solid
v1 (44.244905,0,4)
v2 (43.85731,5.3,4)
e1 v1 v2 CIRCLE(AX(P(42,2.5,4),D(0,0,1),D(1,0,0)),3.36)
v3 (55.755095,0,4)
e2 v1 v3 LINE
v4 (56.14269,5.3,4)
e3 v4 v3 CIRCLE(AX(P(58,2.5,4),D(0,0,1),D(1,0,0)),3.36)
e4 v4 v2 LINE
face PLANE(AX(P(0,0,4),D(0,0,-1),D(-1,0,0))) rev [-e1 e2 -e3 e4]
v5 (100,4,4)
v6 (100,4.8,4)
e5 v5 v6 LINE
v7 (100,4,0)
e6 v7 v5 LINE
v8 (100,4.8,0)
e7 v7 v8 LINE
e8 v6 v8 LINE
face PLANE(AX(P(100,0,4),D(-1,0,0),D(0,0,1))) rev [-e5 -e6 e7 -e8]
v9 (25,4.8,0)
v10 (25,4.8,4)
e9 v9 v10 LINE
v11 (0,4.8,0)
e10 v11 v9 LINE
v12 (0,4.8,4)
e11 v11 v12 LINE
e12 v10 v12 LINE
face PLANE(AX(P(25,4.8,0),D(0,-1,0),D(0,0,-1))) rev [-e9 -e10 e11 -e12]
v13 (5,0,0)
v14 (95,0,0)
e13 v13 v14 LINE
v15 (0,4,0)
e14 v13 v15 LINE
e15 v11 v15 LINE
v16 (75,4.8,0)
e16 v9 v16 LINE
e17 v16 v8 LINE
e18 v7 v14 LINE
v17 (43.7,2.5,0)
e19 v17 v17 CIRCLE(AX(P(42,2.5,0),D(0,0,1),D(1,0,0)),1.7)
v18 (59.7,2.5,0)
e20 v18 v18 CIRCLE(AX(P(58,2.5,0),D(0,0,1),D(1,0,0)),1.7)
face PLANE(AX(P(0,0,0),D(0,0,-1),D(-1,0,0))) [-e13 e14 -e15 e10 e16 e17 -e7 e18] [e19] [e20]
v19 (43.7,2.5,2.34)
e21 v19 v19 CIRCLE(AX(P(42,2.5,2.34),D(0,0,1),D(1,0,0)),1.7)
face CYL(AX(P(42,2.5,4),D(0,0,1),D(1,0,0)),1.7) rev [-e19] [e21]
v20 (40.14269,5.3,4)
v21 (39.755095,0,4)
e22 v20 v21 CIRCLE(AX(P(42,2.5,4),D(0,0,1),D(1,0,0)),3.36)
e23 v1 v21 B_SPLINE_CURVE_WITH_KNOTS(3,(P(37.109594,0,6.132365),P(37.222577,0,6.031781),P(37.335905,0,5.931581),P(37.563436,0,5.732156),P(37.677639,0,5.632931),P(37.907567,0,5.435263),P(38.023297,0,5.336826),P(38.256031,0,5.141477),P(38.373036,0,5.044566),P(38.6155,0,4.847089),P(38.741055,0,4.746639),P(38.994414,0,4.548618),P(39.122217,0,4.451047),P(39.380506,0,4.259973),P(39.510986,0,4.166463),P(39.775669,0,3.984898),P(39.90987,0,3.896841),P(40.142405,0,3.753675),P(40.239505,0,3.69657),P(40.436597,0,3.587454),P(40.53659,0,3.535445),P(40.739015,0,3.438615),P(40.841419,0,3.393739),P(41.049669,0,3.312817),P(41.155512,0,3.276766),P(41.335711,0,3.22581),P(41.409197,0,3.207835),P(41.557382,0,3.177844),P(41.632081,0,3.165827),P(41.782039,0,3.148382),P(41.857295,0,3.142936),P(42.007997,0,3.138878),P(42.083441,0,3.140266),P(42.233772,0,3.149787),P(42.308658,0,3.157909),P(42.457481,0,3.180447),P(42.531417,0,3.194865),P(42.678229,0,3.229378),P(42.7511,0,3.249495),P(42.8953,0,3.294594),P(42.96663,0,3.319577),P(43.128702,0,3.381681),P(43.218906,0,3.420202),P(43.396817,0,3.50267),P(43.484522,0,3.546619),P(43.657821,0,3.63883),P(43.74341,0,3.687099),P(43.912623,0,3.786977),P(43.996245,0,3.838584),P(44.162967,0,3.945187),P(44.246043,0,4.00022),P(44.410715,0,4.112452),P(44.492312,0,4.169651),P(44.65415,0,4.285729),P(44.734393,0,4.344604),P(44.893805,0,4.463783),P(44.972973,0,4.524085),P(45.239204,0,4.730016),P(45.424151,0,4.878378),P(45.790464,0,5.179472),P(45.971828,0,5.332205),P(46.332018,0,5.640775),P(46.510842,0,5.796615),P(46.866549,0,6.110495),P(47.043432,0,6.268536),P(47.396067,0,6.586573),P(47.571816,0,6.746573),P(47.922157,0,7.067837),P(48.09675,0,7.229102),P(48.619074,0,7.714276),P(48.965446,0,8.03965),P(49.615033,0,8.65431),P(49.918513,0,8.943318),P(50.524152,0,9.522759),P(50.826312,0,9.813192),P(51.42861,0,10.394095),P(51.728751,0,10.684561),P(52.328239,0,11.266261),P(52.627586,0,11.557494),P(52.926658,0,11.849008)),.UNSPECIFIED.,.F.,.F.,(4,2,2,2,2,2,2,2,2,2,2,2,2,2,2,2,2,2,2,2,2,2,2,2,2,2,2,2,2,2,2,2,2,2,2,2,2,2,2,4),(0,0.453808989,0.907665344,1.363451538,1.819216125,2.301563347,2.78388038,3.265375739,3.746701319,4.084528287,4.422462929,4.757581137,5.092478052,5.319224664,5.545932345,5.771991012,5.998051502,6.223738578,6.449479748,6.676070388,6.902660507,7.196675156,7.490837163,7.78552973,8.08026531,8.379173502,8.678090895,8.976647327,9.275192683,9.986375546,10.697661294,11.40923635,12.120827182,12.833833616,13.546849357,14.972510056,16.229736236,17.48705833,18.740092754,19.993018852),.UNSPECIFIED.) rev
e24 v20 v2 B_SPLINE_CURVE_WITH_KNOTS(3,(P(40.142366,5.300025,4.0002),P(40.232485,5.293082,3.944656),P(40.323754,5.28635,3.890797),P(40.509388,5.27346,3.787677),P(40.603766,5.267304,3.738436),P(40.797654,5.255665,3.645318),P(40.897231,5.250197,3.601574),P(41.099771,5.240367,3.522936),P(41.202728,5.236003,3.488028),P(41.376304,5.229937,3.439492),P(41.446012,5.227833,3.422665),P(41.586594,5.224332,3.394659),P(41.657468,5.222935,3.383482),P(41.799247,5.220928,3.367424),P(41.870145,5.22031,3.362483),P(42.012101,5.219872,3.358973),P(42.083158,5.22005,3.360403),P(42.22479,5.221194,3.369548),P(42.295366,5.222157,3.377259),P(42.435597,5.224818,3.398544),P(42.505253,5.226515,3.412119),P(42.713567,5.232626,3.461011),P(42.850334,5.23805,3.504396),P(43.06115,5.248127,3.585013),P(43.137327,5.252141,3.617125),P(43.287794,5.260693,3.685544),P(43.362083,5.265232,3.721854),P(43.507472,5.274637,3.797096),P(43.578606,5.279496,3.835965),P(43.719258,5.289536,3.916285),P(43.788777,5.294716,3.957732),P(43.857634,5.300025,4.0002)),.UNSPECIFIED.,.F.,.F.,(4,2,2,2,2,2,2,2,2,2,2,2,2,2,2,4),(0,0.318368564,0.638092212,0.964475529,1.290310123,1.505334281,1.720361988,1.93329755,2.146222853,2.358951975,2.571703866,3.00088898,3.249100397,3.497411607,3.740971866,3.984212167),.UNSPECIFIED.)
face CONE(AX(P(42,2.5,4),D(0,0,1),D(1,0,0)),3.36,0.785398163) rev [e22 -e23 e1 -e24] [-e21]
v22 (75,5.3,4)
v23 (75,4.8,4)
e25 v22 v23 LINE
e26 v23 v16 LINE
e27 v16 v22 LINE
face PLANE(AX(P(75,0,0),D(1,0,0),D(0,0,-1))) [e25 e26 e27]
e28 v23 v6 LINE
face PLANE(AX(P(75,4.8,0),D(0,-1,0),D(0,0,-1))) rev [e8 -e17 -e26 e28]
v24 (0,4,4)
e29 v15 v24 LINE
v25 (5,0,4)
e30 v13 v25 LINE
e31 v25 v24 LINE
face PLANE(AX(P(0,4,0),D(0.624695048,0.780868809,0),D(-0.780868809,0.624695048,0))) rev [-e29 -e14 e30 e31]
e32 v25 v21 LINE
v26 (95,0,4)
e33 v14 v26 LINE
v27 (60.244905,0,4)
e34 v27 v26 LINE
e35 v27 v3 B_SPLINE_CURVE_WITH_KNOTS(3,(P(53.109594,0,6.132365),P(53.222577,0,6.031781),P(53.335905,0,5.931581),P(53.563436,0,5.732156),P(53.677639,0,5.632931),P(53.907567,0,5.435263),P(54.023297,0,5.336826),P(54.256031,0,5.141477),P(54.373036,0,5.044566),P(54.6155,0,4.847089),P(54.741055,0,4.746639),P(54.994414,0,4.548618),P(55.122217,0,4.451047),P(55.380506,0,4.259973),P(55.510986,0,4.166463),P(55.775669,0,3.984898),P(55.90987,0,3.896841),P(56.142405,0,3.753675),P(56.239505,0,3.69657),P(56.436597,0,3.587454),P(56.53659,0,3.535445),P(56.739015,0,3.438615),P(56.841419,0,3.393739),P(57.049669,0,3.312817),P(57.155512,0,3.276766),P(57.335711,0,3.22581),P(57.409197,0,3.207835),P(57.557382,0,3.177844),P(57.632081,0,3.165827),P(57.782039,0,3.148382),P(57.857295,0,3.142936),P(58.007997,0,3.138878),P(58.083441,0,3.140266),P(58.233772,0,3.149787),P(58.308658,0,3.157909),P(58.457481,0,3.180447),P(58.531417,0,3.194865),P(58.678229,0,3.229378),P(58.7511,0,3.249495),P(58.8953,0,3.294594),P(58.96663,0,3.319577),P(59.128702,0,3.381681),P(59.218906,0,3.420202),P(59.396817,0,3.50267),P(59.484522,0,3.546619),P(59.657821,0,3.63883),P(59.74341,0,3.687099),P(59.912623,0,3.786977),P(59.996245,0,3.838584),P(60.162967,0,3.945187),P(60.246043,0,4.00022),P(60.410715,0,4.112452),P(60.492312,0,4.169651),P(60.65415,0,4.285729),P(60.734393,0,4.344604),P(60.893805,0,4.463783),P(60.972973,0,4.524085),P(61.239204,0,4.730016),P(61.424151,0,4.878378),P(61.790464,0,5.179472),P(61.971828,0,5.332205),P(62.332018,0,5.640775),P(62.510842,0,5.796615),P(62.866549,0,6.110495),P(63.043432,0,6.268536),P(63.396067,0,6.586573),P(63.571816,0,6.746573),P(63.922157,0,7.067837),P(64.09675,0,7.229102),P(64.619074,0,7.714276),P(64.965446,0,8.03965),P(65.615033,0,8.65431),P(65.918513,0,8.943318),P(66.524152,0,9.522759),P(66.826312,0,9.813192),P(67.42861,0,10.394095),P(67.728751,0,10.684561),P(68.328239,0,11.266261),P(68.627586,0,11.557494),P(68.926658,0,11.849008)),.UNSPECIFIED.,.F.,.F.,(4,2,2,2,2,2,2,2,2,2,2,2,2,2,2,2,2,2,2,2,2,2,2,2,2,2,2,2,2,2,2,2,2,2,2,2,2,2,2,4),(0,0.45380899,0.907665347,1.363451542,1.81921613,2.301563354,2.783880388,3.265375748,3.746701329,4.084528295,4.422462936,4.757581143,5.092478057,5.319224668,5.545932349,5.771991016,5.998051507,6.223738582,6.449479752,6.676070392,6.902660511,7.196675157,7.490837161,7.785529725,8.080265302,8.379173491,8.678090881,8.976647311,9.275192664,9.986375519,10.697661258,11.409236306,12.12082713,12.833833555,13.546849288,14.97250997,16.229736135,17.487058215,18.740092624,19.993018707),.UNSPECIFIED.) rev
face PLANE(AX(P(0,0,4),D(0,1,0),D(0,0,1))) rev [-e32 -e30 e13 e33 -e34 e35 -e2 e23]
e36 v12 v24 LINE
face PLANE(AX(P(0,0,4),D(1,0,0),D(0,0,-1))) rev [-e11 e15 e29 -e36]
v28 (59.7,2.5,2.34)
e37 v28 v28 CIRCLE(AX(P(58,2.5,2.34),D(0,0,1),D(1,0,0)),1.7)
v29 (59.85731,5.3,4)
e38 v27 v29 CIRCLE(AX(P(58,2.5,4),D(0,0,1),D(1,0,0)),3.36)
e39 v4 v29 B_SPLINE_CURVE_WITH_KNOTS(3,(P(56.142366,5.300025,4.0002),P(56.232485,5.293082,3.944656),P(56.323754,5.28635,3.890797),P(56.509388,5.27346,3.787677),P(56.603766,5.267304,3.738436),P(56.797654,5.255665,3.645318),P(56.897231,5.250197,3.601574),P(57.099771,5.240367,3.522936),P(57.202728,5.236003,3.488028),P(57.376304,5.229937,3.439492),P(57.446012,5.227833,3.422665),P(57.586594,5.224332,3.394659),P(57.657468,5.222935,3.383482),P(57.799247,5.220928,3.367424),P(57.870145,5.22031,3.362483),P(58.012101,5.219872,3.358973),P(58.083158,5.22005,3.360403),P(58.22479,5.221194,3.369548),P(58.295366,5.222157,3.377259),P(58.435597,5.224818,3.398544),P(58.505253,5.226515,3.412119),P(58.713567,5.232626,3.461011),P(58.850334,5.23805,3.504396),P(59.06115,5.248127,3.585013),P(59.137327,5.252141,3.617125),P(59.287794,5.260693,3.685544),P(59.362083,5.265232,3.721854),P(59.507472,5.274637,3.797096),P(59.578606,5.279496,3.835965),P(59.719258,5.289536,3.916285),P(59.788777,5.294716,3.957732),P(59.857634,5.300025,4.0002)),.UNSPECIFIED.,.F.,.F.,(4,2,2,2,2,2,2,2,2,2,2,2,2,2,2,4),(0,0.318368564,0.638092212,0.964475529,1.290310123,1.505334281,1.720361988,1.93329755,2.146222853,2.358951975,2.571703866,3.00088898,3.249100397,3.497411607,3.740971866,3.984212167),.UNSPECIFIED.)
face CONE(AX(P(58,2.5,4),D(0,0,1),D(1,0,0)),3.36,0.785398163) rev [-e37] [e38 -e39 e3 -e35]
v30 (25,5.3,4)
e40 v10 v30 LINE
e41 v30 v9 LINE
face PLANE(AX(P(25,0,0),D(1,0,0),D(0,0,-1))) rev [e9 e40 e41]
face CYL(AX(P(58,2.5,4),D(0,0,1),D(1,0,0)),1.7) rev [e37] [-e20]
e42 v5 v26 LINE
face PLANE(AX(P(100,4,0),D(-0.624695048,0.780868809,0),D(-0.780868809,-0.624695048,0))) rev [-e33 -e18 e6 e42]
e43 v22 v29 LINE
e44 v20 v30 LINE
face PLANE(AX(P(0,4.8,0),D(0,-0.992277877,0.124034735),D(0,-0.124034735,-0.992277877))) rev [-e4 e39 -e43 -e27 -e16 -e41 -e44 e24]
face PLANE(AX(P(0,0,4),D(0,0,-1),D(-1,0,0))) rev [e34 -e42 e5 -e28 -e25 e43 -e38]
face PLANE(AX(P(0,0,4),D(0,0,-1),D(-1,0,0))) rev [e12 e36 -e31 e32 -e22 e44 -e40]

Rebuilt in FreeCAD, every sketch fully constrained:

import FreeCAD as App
import Part
import Sketcher

V = App.Vector


def add_polygon(sketch, points):
    """Adds a closed chain of lines whose ends are joined by coincident constraints."""
    first, n = sketch.GeometryCount, len(points)
    for a, b in zip(points, points[1:] + points[:1]):
        sketch.addGeometry(Part.LineSegment(App.Vector(*a, 0), App.Vector(*b, 0)), False)
    for i in range(n):
        sketch.addConstraint(Sketcher.Constraint("Coincident", first + i, 2, first + (i + 1) % n, 1))

doc = App.newDocument("Part")
params = doc.addObject("Spreadsheet::Sheet", "Params")
for row, (alias, value) in enumerate([
    ("sketch1_width", "100 mm"),
    ("sketch1_height", "5.3 mm"),
    ("pad1_length", "4 mm"),
    ("sketch2_height", "4 mm"),
    ("sketch2_width", "0.5 mm"),
    ("sketch3_diameter", "3 mm"),
    ("sketch4_diameter", "3.4 mm"),
    ("hole_diameter", "3.4 mm"),
    ("hole_csink_diameter", "6.72 mm"),
    ("sketch5_width", "5 mm"),
    ("sketch5_height", "4 mm"),
    ("sketch6_height", "4 mm"),
    ("sketch6_width", "0.5 mm"),
    ("pocket4_length", "25 mm"),
    ("sketch7_height", "4 mm"),
    ("sketch7_width", "0.5 mm"),
    ("pocket5_length", "25 mm"),
], start=1):
    params.set(f"A{row}", alias)
    params.set(f"B{row}", "=" + value)
    params.setAlias(f"B{row}", alias)

body = doc.addObject("PartDesign::Body", "Body")

# Sketch on XY plane
sketch1 = body.newObject("Sketcher::SketchObject", "Sketch")
sketch1.AttachmentSupport = (doc.getObject("XY_Plane"), [""])
sketch1.MapMode = "FlatFace"
add_polygon(sketch1, [(0, 5), (0, 0), (100, 0), (100, 5)])  # lines 0-3
sketch1.addConstraint([
    Sketcher.Constraint("Vertical", 0),
    Sketcher.Constraint("Horizontal", 1),
    Sketcher.Constraint("Vertical", 2),
    Sketcher.Constraint("Horizontal", 3),
    Sketcher.Constraint("Coincident", 0, 2, -1, 1),
    Sketcher.Constraint("DistanceX", 1, 1, 1, 2, 100.0),
    Sketcher.Constraint("DistanceY", 0, 2, 0, 1, 5.3),
])
sketch1.setExpression("Constraints[9]", "Params.sketch1_width")
sketch1.setExpression("Constraints[10]", "Params.sketch1_height")
pad1 = body.newObject("PartDesign::Pad", "Pad")
pad1.Profile = sketch1
pad1.setExpression("Length", "Params.pad1_length")

# Sketch on YZ plane
sketch2 = body.newObject("Sketcher::SketchObject", "Sketch001")
sketch2.AttachmentSupport = (doc.getObject("YZ_Plane"), [""])
sketch2.MapMode = "FlatFace"
sketch2.AttachmentOffset = App.Placement(V(0, 0, 100), App.Rotation())
add_polygon(sketch2, [(5.3, 0), (5.3, 4), (4.8, 0)])  # lines 0-2
sketch2.addConstraint([
    Sketcher.Constraint("Vertical", 0),
    Sketcher.Constraint("Horizontal", 2),
    Sketcher.Constraint("PointOnObject", 1, 2, -1),
    Sketcher.Constraint("DistanceY", 0, 1, 0, 2, 4.0),
    Sketcher.Constraint("DistanceX", 2, 1, 2, 2, 0.5),
    Sketcher.Constraint("DistanceX", -1, 1, 0, 2, 5.3),
])
sketch2.setExpression("Constraints[6]", "Params.sketch2_height")
sketch2.setExpression("Constraints[7]", "Params.sketch2_width")
pocket1 = body.newObject("PartDesign::Pocket", "Pocket")
pocket1.Profile = sketch2
pocket1.Type = "ThroughAll"

# Sketch on XY plane
sketch3 = body.newObject("Sketcher::SketchObject", "Sketch002")
sketch3.AttachmentSupport = (doc.getObject("XY_Plane"), [""])
sketch3.MapMode = "FlatFace"
sketch3.AttachmentOffset = App.Placement(V(0, 0, 4), App.Rotation())
sketch3.addGeometry([
    Part.Circle(V(42, 2.5, 0), V(0, 0, 1), 1.5),
    Part.Circle(V(58, 2.5, 0), V(0, 0, 1), 1.5),
], False)
sketch3.addConstraint([
    Sketcher.Constraint("Equal", 0, 1),
    Sketcher.Constraint("Horizontal", 0, 3, 1, 3),
    Sketcher.Constraint("Diameter", 0, 3.0),
    Sketcher.Constraint("DistanceX", -1, 1, 0, 3, 42.0),
    Sketcher.Constraint("DistanceX", -1, 1, 1, 3, 58.0),
    Sketcher.Constraint("DistanceY", -1, 1, 0, 3, 2.5),
])
sketch3.setExpression("Constraints[2]", "Params.sketch3_diameter")
pocket2 = body.newObject("PartDesign::Pocket", "Pocket001")
pocket2.Profile = sketch3
pocket2.Type = "ThroughAll"

# Sketch on XY plane
sketch4 = body.newObject("Sketcher::SketchObject", "Sketch003")
sketch4.AttachmentSupport = (doc.getObject("XY_Plane"), [""])
sketch4.MapMode = "FlatFace"
sketch4.AttachmentOffset = App.Placement(V(0, 0, 4), App.Rotation())
sketch4.addGeometry([
    Part.Circle(V(42, 2.5, 0), V(0, 0, 1), 1.7),
    Part.Circle(V(58, 2.5, 0), V(0, 0, 1), 1.7),
], False)
sketch4.addConstraint([
    Sketcher.Constraint("Equal", 0, 1),
    Sketcher.Constraint("Horizontal", 0, 3, 1, 3),
    Sketcher.Constraint("Diameter", 0, 3.4),
    Sketcher.Constraint("DistanceX", -1, 1, 0, 3, 42.0),
    Sketcher.Constraint("DistanceX", -1, 1, 1, 3, 58.0),
    Sketcher.Constraint("DistanceY", -1, 1, 0, 3, 2.5),
])
sketch4.setExpression("Constraints[2]", "Params.sketch4_diameter")
doc.recompute()
hole = body.newObject("PartDesign::Hole", "Hole")
hole.Profile = sketch4
hole.ThreadType = "None"
hole.setExpression("Diameter", "Params.hole_diameter")
hole.DepthType = "ThroughAll"
hole.HoleCutType = "Countersink"
hole.setExpression("HoleCutDiameter", "Params.hole_csink_diameter")
hole.HoleCutCountersinkAngle = 90

# Sketch on XY plane
sketch5 = body.newObject("Sketcher::SketchObject", "Sketch004")
sketch5.AttachmentSupport = (doc.getObject("XY_Plane"), [""])
sketch5.MapMode = "FlatFace"
sketch5.AttachmentOffset = App.Placement(V(0, 0, 4), App.Rotation())
add_polygon(sketch5, [(5, 0), (0, 4), (0, 0)])  # lines 0-2
add_polygon(sketch5, [(100, 0), (100, 4), (95, 0)])  # lines 3-5
sketch5.addConstraint([
    Sketcher.Constraint("Vertical", 1),
    Sketcher.Constraint("Horizontal", 2),
    Sketcher.Constraint("Vertical", 3),
    Sketcher.Constraint("Horizontal", 5),
    Sketcher.Constraint("Coincident", 1, 2, -1, 1),
    Sketcher.Constraint("PointOnObject", 4, 2, -1),
    Sketcher.Constraint("Horizontal", 0, 2, 3, 2),
    Sketcher.Constraint("Equal", 2, 5),
    Sketcher.Constraint("DistanceX", 2, 1, 2, 2, 5.0),
    Sketcher.Constraint("DistanceY", 1, 2, 1, 1, 4.0),
    Sketcher.Constraint("DistanceX", -1, 1, 3, 2, 100.0),
])
sketch5.setExpression("Constraints[14]", "Params.sketch5_width")
sketch5.setExpression("Constraints[15]", "Params.sketch5_height")
pocket3 = body.newObject("PartDesign::Pocket", "Pocket002")
pocket3.Profile = sketch5
pocket3.Type = "ThroughAll"

# Sketch on YZ plane
sketch6 = body.newObject("Sketcher::SketchObject", "Sketch005")
sketch6.AttachmentSupport = (doc.getObject("YZ_Plane"), [""])
sketch6.MapMode = "FlatFace"
sketch6.AttachmentOffset = App.Placement(V(0, 0, 100), App.Rotation())
add_polygon(sketch6, [(4.8, 0), (5.3, 4), (4.8, 4)])  # lines 0-2
sketch6.addConstraint([
    Sketcher.Constraint("Horizontal", 1),
    Sketcher.Constraint("Vertical", 2),
    Sketcher.Constraint("PointOnObject", 2, 2, -1),
    Sketcher.Constraint("DistanceY", 2, 2, 2, 1, 4.0),
    Sketcher.Constraint("DistanceX", 1, 2, 1, 1, 0.5),
    Sketcher.Constraint("DistanceX", -1, 1, 0, 2, 5.3),
])
sketch6.setExpression("Constraints[6]", "Params.sketch6_height")
sketch6.setExpression("Constraints[7]", "Params.sketch6_width")
pocket4 = body.newObject("PartDesign::Pocket", "Pocket003")
pocket4.Profile = sketch6
pocket4.setExpression("Length", "Params.pocket4_length")

# Sketch on YZ plane
sketch7 = body.newObject("Sketcher::SketchObject", "Sketch006")
sketch7.AttachmentSupport = (doc.getObject("YZ_Plane"), [""])
sketch7.MapMode = "FlatFace"
add_polygon(sketch7, [(4.8, 0), (4.8, 4), (5.3, 4)])  # lines 0-2
sketch7.addConstraint([
    Sketcher.Constraint("Vertical", 0),
    Sketcher.Constraint("Horizontal", 1),
    Sketcher.Constraint("PointOnObject", 2, 2, -1),
    Sketcher.Constraint("DistanceY", 0, 1, 0, 2, 4.0),
    Sketcher.Constraint("DistanceX", 1, 1, 1, 2, 0.5),
    Sketcher.Constraint("DistanceX", -1, 1, 0, 2, 4.8),
])
sketch7.setExpression("Constraints[6]", "Params.sketch7_height")
sketch7.setExpression("Constraints[7]", "Params.sketch7_width")
pocket5 = body.newObject("PartDesign::Pocket", "Pocket004")
pocket5.Profile = sketch7
pocket5.setExpression("Length", "Params.pocket5_length")
pocket5.Reversed = True

doc.recompute()
